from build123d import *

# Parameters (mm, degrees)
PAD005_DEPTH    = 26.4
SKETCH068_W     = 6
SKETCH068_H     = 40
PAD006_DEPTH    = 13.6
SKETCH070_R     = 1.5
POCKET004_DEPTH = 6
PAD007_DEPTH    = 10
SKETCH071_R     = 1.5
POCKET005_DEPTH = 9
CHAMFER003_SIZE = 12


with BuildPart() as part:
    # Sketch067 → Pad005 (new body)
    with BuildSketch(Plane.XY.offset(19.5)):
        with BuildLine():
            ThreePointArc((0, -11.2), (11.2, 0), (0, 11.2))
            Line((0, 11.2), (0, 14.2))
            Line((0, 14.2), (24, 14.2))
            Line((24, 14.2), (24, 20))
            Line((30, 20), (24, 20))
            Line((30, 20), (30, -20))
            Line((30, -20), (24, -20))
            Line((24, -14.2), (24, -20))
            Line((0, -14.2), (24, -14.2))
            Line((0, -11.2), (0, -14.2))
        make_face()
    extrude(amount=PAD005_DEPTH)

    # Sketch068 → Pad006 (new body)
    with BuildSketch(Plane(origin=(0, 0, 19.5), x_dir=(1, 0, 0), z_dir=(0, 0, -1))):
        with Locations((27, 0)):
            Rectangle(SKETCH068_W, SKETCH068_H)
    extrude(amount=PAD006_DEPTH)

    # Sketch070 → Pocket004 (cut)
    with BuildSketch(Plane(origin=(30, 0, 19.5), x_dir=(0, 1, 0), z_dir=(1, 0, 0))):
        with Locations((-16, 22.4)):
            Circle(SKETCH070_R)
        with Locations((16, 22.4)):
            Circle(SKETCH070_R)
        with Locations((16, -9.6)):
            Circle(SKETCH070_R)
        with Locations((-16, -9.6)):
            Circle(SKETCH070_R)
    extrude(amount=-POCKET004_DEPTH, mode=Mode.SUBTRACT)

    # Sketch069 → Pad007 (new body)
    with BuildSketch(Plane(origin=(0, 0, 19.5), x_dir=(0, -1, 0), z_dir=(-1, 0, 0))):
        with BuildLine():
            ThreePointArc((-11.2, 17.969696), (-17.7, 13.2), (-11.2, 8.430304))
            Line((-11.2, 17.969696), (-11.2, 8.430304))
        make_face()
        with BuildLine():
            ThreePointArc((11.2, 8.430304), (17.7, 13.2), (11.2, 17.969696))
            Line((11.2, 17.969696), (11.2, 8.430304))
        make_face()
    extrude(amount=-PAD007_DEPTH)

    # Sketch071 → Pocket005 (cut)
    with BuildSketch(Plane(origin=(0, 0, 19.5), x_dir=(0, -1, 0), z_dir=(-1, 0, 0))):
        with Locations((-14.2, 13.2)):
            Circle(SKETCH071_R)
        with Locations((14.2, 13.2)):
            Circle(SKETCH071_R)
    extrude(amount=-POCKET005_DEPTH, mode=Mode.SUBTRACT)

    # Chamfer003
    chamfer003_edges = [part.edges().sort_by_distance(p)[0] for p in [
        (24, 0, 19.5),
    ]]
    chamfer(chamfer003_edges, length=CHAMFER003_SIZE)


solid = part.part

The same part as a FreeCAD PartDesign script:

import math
import FreeCAD as App
import Part
import Sketcher
from FreeCAD import Vector


def edges_at(feature, points):
    """Names of the edges that pass closest to the given points."""
    edges = feature.Shape.Edges
    near = lambda p: min(range(len(edges)), key=lambda i: edges[i].distToShape(Part.Vertex(*p))[0])
    return sorted({f"Edge{near(p) + 1}" for p in points})


def add_polygon(sketch, points):
    """Adds a closed chain of lines whose ends are joined by coincident constraints."""
    first, n = sketch.GeometryCount, len(points)
    for a, b in zip(points, points[1:] + points[:1]):
        sketch.addGeometry(Part.LineSegment(App.Vector(*a, 0), App.Vector(*b, 0)), False)
    for i in range(n):
        sketch.addConstraint(Sketcher.Constraint("Coincident", first + i, 2, first + (i + 1) % n, 1))

doc = App.newDocument("Part")
body = doc.addObject("PartDesign::Body", "Body")

# Sketch on XY plane
sketch1 = body.newObject("Sketcher::SketchObject", "Sketch")
sketch1.AttachmentSupport = (doc.getObject("XY_Plane"), [""])
sketch1.MapMode = "FlatFace"
sketch1.AttachmentOffset = App.Placement(Vector(0, 0, 19.5), App.Rotation())
sketch1.addGeometry([
    Part.ArcOfCircle(Part.Circle(Vector(0, 0, 0), Vector(0, 0, 1), 11.2), math.radians(-90), math.radians(90)),  # 0
    Part.LineSegment(Vector(0, -11.2, 0), Vector(0, -14.2, 0)),  # 1
    Part.LineSegment(Vector(0, -14.2, 0), Vector(24, -14.2, 0)),  # 2
    Part.LineSegment(Vector(24, -14.2, 0), Vector(24, -20, 0)),  # 3
    Part.LineSegment(Vector(24, -20, 0), Vector(30, -20, 0)),  # 4
    Part.LineSegment(Vector(30, -20, 0), Vector(30, 20, 0)),  # 5
    Part.LineSegment(Vector(30, 20, 0), Vector(24, 20, 0)),  # 6
    Part.LineSegment(Vector(24, 20, 0), Vector(24, 14.2, 0)),  # 7
    Part.LineSegment(Vector(24, 14.2, 0), Vector(0, 14.2, 0)),  # 8
    Part.LineSegment(Vector(0, 14.2, 0), Vector(0, 11.2, 0)),  # 9
], False)
sketch1.addConstraint([
    Sketcher.Constraint("Coincident", 0, 1, 1, 1),
    Sketcher.Constraint("Coincident", 1, 2, 2, 1),
    Sketcher.Constraint("Coincident", 2, 2, 3, 1),
    Sketcher.Constraint("Coincident", 3, 2, 4, 1),
    Sketcher.Constraint("Coincident", 4, 2, 5, 1),
    Sketcher.Constraint("Coincident", 5, 2, 6, 1),
    Sketcher.Constraint("Coincident", 6, 2, 7, 1),
    Sketcher.Constraint("Coincident", 7, 2, 8, 1),
    Sketcher.Constraint("Coincident", 8, 2, 9, 1),
    Sketcher.Constraint("Coincident", 9, 2, 0, 2),
    Sketcher.Constraint("Vertical", 1),
    Sketcher.Constraint("Horizontal", 2),
    Sketcher.Constraint("Vertical", 3),
    Sketcher.Constraint("Horizontal", 4),
    Sketcher.Constraint("Vertical", 5),
    Sketcher.Constraint("Horizontal", 6),
    Sketcher.Constraint("Vertical", 7),
    Sketcher.Constraint("Horizontal", 8),
    Sketcher.Constraint("Vertical", 9),
    Sketcher.Constraint("Coincident", 0, 3, -1, 1),
    Sketcher.Constraint("Symmetric", 1, 2, 8, 2, -1, 1),
    Sketcher.Constraint("Symmetric", 3, 2, 6, 2, -1),
    Sketcher.Constraint("PointOnObject", 0, 1, -2),
    Sketcher.Constraint("Radius", 0, 11.2),
    Sketcher.Constraint("DistanceX", 2, 1, 2, 2, 24.0),
    Sketcher.Constraint("DistanceX", 4, 1, 4, 2, 6.0),
    Sketcher.Constraint("DistanceY", 1, 2, 1, 1, 3.0),
    Sketcher.Constraint("DistanceY", 5, 1, 5, 2, 40.0),
])
pad1 = body.newObject("PartDesign::Pad", "Pad")
pad1.Profile = sketch1
pad1.Length = 26.4

# Sketch on XY plane
sketch2 = body.newObject("Sketcher::SketchObject", "Sketch001")
sketch2.AttachmentSupport = (doc.getObject("XY_Plane"), [""])
sketch2.MapMode = "FlatFace"
sketch2.AttachmentOffset = App.Placement(Vector(0, 0, 19.5), App.Rotation())
add_polygon(sketch2, [(24, -20), (24, 20), (30, 20), (30, -20)])  # lines 0-3
sketch2.addConstraint([
    Sketcher.Constraint("Vertical", 0),
    Sketcher.Constraint("Horizontal", 1),
    Sketcher.Constraint("Vertical", 2),
    Sketcher.Constraint("Horizontal", 3),
    Sketcher.Constraint("DistanceX", 1, 1, 1, 2, 6.0),
    Sketcher.Constraint("DistanceY", 0, 1, 0, 2, 40.0),
    Sketcher.Constraint("DistanceX", -1, 1, 0, 2, 24.0),
    Sketcher.Constraint("DistanceY", -1, 1, 0, 2, 20.0),
])
pad2 = body.newObject("PartDesign::Pad", "Pad001")
pad2.Profile = sketch2
pad2.Length = 13.6
pad2.Reversed = True

# Sketch on YZ plane
sketch3 = body.newObject("Sketcher::SketchObject", "Sketch002")
sketch3.AttachmentSupport = (doc.getObject("YZ_Plane"), [""])
sketch3.MapMode = "FlatFace"
sketch3.AttachmentOffset = App.Placement(Vector(0, 0, 30), App.Rotation())
sketch3.addGeometry([
    Part.Circle(Vector(-16, 41.9, 0), Vector(0, 0, 1), 1.5),
    Part.Circle(Vector(16, 41.9, 0), Vector(0, 0, 1), 1.5),
    Part.Circle(Vector(16, 9.9, 0), Vector(0, 0, 1), 1.5),
    Part.Circle(Vector(-16, 9.9, 0), Vector(0, 0, 1), 1.5),
], False)
sketch3.addConstraint([
    Sketcher.Constraint("Equal", 0, 1),
    Sketcher.Constraint("Equal", 1, 2),
    Sketcher.Constraint("Equal", 2, 3),
    Sketcher.Constraint("Symmetric", 0, 3, 1, 3, -2),
    Sketcher.Constraint("Symmetric", 2, 3, 3, 3, -2),
    Sketcher.Constraint("Vertical", 1, 3, 2, 3),
    Sketcher.Constraint("Diameter", 0, 3.0),
    Sketcher.Constraint("DistanceX", 0, 3, -1, 1, 16.0),
    Sketcher.Constraint("DistanceY", 2, 3, 1, 3, 32.0),
    Sketcher.Constraint("DistanceY", -1, 1, 0, 3, 41.9),
])
pocket1 = body.newObject("PartDesign::Pocket", "Pocket")
pocket1.Profile = sketch3
pocket1.Length = 6

# Sketch on YZ plane
sketch4 = body.newObject("Sketcher::SketchObject", "Sketch003")
sketch4.AttachmentSupport = (doc.getObject("YZ_Plane"), [""])
sketch4.MapMode = "FlatFace"
sketch4.addGeometry([
    Part.ArcOfCircle(Part.Circle(Vector(12.7, 32.7, 0), Vector(0, 0, 1), 5), math.radians(-107), math.radians(107)),
    Part.LineSegment(Vector(11.2, 27.9, 0), Vector(11.2, 37.5, 0)),
    Part.ArcOfCircle(Part.Circle(Vector(-12.7, 32.7, 0), Vector(0, 0, 1), 5), math.radians(73), math.radians(287)),
    Part.LineSegment(Vector(-11.2, 37.5, 0), Vector(-11.2, 27.9, 0)),
], False)
sketch4.addConstraint([
    Sketcher.Constraint("Coincident", 0, 1, 1, 1),
    Sketcher.Constraint("Coincident", 1, 2, 0, 2),
    Sketcher.Constraint("Coincident", 2, 1, 3, 1),
    Sketcher.Constraint("Coincident", 3, 2, 2, 2),
    Sketcher.Constraint("Vertical", 1),
    Sketcher.Constraint("Vertical", 3),
    Sketcher.Constraint("Equal", 0, 2),
    Sketcher.Constraint("Symmetric", 0, 3, 2, 3, -2),
    Sketcher.Constraint("Horizontal", 1, 2, 2, 1),
    Sketcher.Constraint("Radius", 0, 5.0),
    Sketcher.Constraint("DistanceX", -1, 1, 0, 3, 12.7),
    Sketcher.Constraint("DistanceY", -1, 1, 0, 3, 32.7),
    Sketcher.Constraint("DistanceX", -1, 1, 0, 1, 11.2),
])
pad3 = body.newObject("PartDesign::Pad", "Pad002")
pad3.Profile = sketch4
pad3.Length = 10

# Sketch on YZ plane
sketch5 = body.newObject("Sketcher::SketchObject", "Sketch004")
sketch5.AttachmentSupport = (doc.getObject("YZ_Plane"), [""])
sketch5.MapMode = "FlatFace"
sketch5.addGeometry([
    Part.Circle(Vector(14.2, 32.7, 0), Vector(0, 0, 1), 1.5),
    Part.Circle(Vector(-14.2, 32.7, 0), Vector(0, 0, 1), 1.5),
], False)
sketch5.addConstraint([
    Sketcher.Constraint("Equal", 0, 1),
    Sketcher.Constraint("Symmetric", 0, 3, 1, 3, -2),
    Sketcher.Constraint("Diameter", 0, 3.0),
    Sketcher.Constraint("DistanceX", -1, 1, 0, 3, 14.2),
    Sketcher.Constraint("DistanceY", -1, 1, 0, 3, 32.7),
])
pocket2 = body.newObject("PartDesign::Pocket", "Pocket001")
pocket2.Profile = sketch5
pocket2.Length = 9
pocket2.Reversed = True
doc.recompute()

chamfer = body.newObject("PartDesign::Chamfer", "Chamfer")
chamfer.Base = (pocket2, edges_at(pocket2, [(24, 0, 19.5)]))
chamfer.Size = 12

doc.recompute()
